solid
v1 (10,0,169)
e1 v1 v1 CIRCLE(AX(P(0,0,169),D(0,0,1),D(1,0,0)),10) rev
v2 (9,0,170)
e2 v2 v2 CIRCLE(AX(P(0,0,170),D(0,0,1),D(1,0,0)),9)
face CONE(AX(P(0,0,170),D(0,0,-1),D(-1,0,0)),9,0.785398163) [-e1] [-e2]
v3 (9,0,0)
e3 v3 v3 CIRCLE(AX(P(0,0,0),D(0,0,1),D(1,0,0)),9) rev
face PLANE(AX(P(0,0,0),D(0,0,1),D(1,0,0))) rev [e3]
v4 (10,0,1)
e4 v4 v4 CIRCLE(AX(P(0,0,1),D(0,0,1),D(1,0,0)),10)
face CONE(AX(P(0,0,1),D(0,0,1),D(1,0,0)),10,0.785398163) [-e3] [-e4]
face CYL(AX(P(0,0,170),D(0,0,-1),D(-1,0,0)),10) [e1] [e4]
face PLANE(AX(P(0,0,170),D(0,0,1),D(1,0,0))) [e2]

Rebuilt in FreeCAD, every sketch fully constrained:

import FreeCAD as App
import Part
import Sketcher
Q = App.Units.Quantity


def edges_at(feature, points):
    """Names of the edges that pass closest to the given points."""
    edges = feature.Shape.Edges
    near = lambda p: min(range(len(edges)), key=lambda i: edges[i].distToShape(Part.Vertex(*p))[0])
    return sorted({f"Edge{near(p) + 1}" for p in points})

doc = App.newDocument("Part")
body = doc.addObject("PartDesign::Body", "Body")

# Sketch on XY plane
sketch1 = body.newObject("Sketcher::SketchObject", "Sketch")
sketch1.AttachmentSupport = (doc.getObject("XY_Plane"), [""])
sketch1.MapMode = "FlatFace"
sketch1.addGeometry(Part.Circle(App.Vector(0, 0, 0), App.Vector(0, 0, 1), 10), False)
sketch1.addConstraint([
    Sketcher.Constraint("Coincident", 0, 3, -1, 1),
    Sketcher.Constraint("Diameter", 0, Q("20 mm")),
])
pad1 = body.newObject("PartDesign::Pad", "Pad")
pad1.Profile = sketch1
pad1.Length = 170
doc.recompute()

chamfer = body.newObject("PartDesign::Chamfer", "Chamfer")
chamfer.Base = (pad1, edges_at(pad1, [(-10, 0, 0), (-10, 0, 170)]))
chamfer.Size = 1

doc.recompute()
